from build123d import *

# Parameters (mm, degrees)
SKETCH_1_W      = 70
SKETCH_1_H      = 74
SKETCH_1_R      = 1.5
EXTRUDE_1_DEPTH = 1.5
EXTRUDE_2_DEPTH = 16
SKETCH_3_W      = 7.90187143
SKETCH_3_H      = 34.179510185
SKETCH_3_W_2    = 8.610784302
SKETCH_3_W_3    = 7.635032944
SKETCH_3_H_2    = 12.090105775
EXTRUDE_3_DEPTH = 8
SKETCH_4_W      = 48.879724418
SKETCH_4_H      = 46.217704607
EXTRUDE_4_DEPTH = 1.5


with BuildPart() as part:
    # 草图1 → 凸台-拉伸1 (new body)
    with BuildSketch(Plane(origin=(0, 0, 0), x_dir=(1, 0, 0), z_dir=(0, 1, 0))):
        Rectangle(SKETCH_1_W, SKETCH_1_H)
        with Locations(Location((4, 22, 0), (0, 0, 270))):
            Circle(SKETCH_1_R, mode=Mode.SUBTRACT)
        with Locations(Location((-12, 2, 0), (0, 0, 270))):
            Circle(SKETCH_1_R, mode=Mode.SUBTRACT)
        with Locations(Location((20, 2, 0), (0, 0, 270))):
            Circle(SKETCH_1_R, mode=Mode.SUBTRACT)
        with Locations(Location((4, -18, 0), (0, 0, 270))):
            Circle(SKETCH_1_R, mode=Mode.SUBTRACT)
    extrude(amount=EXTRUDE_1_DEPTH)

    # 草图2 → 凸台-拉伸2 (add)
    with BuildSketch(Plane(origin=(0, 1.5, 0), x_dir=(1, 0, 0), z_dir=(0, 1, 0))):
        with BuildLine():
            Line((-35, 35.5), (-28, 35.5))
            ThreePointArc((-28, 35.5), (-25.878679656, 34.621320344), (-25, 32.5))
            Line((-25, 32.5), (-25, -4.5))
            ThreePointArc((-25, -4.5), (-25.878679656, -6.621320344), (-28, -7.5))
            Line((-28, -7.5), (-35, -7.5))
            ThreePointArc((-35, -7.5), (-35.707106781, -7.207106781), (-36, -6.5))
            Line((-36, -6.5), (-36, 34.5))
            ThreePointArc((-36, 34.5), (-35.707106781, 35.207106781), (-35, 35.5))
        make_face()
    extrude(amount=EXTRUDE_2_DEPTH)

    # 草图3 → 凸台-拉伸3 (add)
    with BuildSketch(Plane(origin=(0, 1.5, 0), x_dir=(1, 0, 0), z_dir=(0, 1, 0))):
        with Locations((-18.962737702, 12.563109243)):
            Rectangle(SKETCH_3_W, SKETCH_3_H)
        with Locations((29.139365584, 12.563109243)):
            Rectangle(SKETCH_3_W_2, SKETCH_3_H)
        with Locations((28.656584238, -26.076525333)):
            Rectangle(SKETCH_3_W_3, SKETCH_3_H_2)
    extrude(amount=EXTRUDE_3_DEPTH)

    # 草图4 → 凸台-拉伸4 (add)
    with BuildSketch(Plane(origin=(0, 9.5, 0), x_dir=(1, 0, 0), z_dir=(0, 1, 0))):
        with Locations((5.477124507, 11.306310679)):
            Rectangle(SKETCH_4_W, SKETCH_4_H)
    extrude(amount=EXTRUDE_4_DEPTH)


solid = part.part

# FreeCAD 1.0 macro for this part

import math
import FreeCAD as App
import Part
import Sketcher

V = App.Vector
Q = App.Units.Quantity


def add_polygon(sketch, points):
    """Adds a closed chain of lines whose ends are joined by coincident constraints."""
    first, n = sketch.GeometryCount, len(points)
    for a, b in zip(points, points[1:] + points[:1]):
        sketch.addGeometry(Part.LineSegment(App.Vector(*a, 0), App.Vector(*b, 0)), False)
    for i in range(n):
        sketch.addConstraint(Sketcher.Constraint("Coincident", first + i, 2, first + (i + 1) % n, 1))

doc = App.newDocument("Part")
body = doc.addObject("PartDesign::Body", "Body")

sketch1 = body.newObject("Sketcher::SketchObject", "Sketch")
sketch1.AttachmentSupport = (doc.getObject("XZ_Plane"), [""])
sketch1.MapMode = "FlatFace"
add_polygon(sketch1, [(-35, -37), (-35, 37), (35, 37), (35, -37)])
sketch1.addGeometry(Part.Circle(V(4, 18, 0), V(0, 0, 1), 1.5), False)
sketch1.addGeometry(Part.Circle(V(-12, -2, 0), V(0, 0, 1), 1.5), False)
sketch1.addGeometry(Part.Circle(V(20, -2, 0), V(0, 0, 1), 1.5), False)
sketch1.addGeometry(Part.Circle(V(4, -22, 0), V(0, 0, 1), 1.5), False)
sketch1.addConstraint(Sketcher.Constraint("Vertical", 0))
sketch1.addConstraint(Sketcher.Constraint("Horizontal", 1))
sketch1.addConstraint(Sketcher.Constraint("Vertical", 2))
sketch1.addConstraint(Sketcher.Constraint("Horizontal", 3))
sketch1.addConstraint(Sketcher.Constraint("Equal", 4, 5))
sketch1.addConstraint(Sketcher.Constraint("Equal", 5, 6))
sketch1.addConstraint(Sketcher.Constraint("Equal", 6, 7))
sketch1.addConstraint(Sketcher.Constraint("Symmetric", 0, 2, 2, 2, -1, 1))
sketch1.addConstraint(Sketcher.Constraint("Horizontal", 5, 3, 6, 3))
sketch1.addConstraint(Sketcher.Constraint("Vertical", 4, 3, 7, 3))
sketch1.addConstraint(Sketcher.Constraint("Diameter", 4, Q("3 mm")))
sketch1.addConstraint(Sketcher.Constraint("DistanceX", 1, 1, 1, 2, Q("70 mm")))
sketch1.addConstraint(Sketcher.Constraint("DistanceY", 0, 1, 0, 2, Q("74 mm")))
sketch1.addConstraint(Sketcher.Constraint("DistanceX", -1, 1, 4, 3, Q("4 mm")))
sketch1.addConstraint(Sketcher.Constraint("DistanceY", -1, 1, 4, 3, Q("18 mm")))
sketch1.addConstraint(Sketcher.Constraint("DistanceX", 5, 3, -1, 1, Q("12 mm")))
sketch1.addConstraint(Sketcher.Constraint("DistanceY", 5, 3, -1, 1, Q("2 mm")))
sketch1.addConstraint(Sketcher.Constraint("DistanceX", -1, 1, 6, 3, Q("20 mm")))
sketch1.addConstraint(Sketcher.Constraint("DistanceY", 7, 3, -1, 1, Q("22 mm")))
pad1 = body.newObject("PartDesign::Pad", "Pad")
pad1.Profile = sketch1
pad1.Length = 1.5
pad1.Reversed = True

sketch2 = body.newObject("Sketcher::SketchObject", "Sketch001")
sketch2.AttachmentSupport = (doc.getObject("XZ_Plane"), [""])
sketch2.MapMode = "FlatFace"
sketch2.AttachmentOffset = App.Placement(V(0, 0, -1.5), App.Rotation())
sketch2.addGeometry(Part.LineSegment(V(-28, -35.5, 0), V(-35, -35.5, 0)), False)
sketch2.addGeometry(Part.ArcOfCircle(Part.Circle(V(-35, -34.5, 0), V(0, 0, 1), 1), math.radians(-180), math.radians(-90)), False)
sketch2.addGeometry(Part.LineSegment(V(-36, -34.5, 0), V(-36, 6.5, 0)), False)
sketch2.addGeometry(Part.ArcOfCircle(Part.Circle(V(-35, 6.5, 0), V(0, 0, 1), 1), math.radians(90), math.radians(180)), False)
sketch2.addGeometry(Part.LineSegment(V(-35, 7.5, 0), V(-28, 7.5, 0)), False)
sketch2.addGeometry(Part.ArcOfCircle(Part.Circle(V(-28, 4.5, 0), V(0, 0, 1), 3), math.radians(0), math.radians(90)), False)
sketch2.addGeometry(Part.LineSegment(V(-25, 4.5, 0), V(-25, -32.5, 0)), False)
sketch2.addGeometry(Part.ArcOfCircle(Part.Circle(V(-28, -32.5, 0), V(0, 0, 1), 3), math.radians(-90), math.radians(0)), False)
sketch2.addConstraint(Sketcher.Constraint("Tangent", 0, 2, 1, 2))
sketch2.addConstraint(Sketcher.Constraint("Tangent", 1, 1, 2, 1))
sketch2.addConstraint(Sketcher.Constraint("Tangent", 2, 2, 3, 2))
sketch2.addConstraint(Sketcher.Constraint("Tangent", 3, 1, 4, 1))
sketch2.addConstraint(Sketcher.Constraint("Tangent", 4, 2, 5, 2))
sketch2.addConstraint(Sketcher.Constraint("Tangent", 5, 1, 6, 1))
sketch2.addConstraint(Sketcher.Constraint("Tangent", 6, 2, 7, 2))
sketch2.addConstraint(Sketcher.Constraint("Tangent", 7, 1, 0, 1))
sketch2.addConstraint(Sketcher.Constraint("Horizontal", 0))
sketch2.addConstraint(Sketcher.Constraint("Vertical", 2))
sketch2.addConstraint(Sketcher.Constraint("Horizontal", 4))
sketch2.addConstraint(Sketcher.Constraint("Vertical", 6))
sketch2.addConstraint(Sketcher.Constraint("Equal", 1, 3))
sketch2.addConstraint(Sketcher.Constraint("Equal", 5, 7))
sketch2.addConstraint(Sketcher.Constraint("Radius", 1, Q("1 mm")))
sketch2.addConstraint(Sketcher.Constraint("Radius", 5, Q("3 mm")))
sketch2.addConstraint(Sketcher.Constraint("DistanceX", 0, 2, 0, 1, Q("7 mm")))
sketch2.addConstraint(Sketcher.Constraint("DistanceY", 2, 1, 2, 2, Q("41 mm")))
sketch2.addConstraint(Sketcher.Constraint("DistanceX", 1, 3, -1, 1, Q("35 mm")))
sketch2.addConstraint(Sketcher.Constraint("DistanceY", 1, 3, -1, 1, Q("34.5 mm")))
pad2 = body.newObject("PartDesign::Pad", "Pad001")
pad2.Profile = sketch2
pad2.Length = 16
pad2.Reversed = True

sketch3 = body.newObject("Sketcher::SketchObject", "Sketch002")
sketch3.AttachmentSupport = (doc.getObject("XZ_Plane"), [""])
sketch3.MapMode = "FlatFace"
sketch3.AttachmentOffset = App.Placement(V(0, 0, -1.5), App.Rotation())
add_polygon(sketch3, [(-23, -30), (-23, 5), (-15, 5), (-15, -30)])
add_polygon(sketch3, [(25, -30), (25, 5), (33, 5), (33, -30)])
add_polygon(sketch3, [(25, 20), (25, 32), (32, 32), (32, 20)])
sketch3.addConstraint(Sketcher.Constraint("Vertical", 0))
sketch3.addConstraint(Sketcher.Constraint("Horizontal", 1))
sketch3.addConstraint(Sketcher.Constraint("Vertical", 2))
sketch3.addConstraint(Sketcher.Constraint("Horizontal", 3))
sketch3.addConstraint(Sketcher.Constraint("Vertical", 4))
sketch3.addConstraint(Sketcher.Constraint("Horizontal", 5))
sketch3.addConstraint(Sketcher.Constraint("Vertical", 6))
sketch3.addConstraint(Sketcher.Constraint("Horizontal", 7))
sketch3.addConstraint(Sketcher.Constraint("Vertical", 8))
sketch3.addConstraint(Sketcher.Constraint("Horizontal", 9))
sketch3.addConstraint(Sketcher.Constraint("Vertical", 10))
sketch3.addConstraint(Sketcher.Constraint("Horizontal", 11))
sketch3.addConstraint(Sketcher.Constraint("Horizontal", 1, 2, 4, 2))
sketch3.addConstraint(Sketcher.Constraint("Horizontal", 3, 2, 6, 2))
sketch3.addConstraint(Sketcher.Constraint("DistanceX", 1, 1, 1, 2, Q("7.901871 mm")))
sketch3.addConstraint(Sketcher.Constraint("DistanceY", 0, 1, 0, 2, Q("34.17951 mm")))
sketch3.addConstraint(Sketcher.Constraint("DistanceX", 1, 2, -1, 1, Q("15.011802 mm")))
sketch3.addConstraint(Sketcher.Constraint("DistanceX", -1, 1, 9, 2, Q("32.474101 mm")))
sketch3.addConstraint(Sketcher.Constraint("DistanceX", 5, 1, 5, 2, Q("8.610784 mm")))
sketch3.addConstraint(Sketcher.Constraint("DistanceX", 9, 1, 9, 2, Q("7.635033 mm")))
sketch3.addConstraint(Sketcher.Constraint("DistanceY", 8, 1, 8, 2, Q("12.090106 mm")))
sketch3.addConstraint(Sketcher.Constraint("DistanceY", -1, 1, 8, 2, Q("32.121578 mm")))
sketch3.addConstraint(Sketcher.Constraint("DistanceX", 1, 2, 5, 2, Q("48.45656 mm")))
sketch3.addConstraint(Sketcher.Constraint("DistanceY", -1, 1, 0, 2, Q("4.526646 mm")))
pad3 = body.newObject("PartDesign::Pad", "Pad002")
pad3.Profile = sketch3
pad3.Length = 8
pad3.Reversed = True

sketch4 = body.newObject("Sketcher::SketchObject", "Sketch003")
sketch4.AttachmentSupport = (doc.getObject("XZ_Plane"), [""])
sketch4.MapMode = "FlatFace"
sketch4.AttachmentOffset = App.Placement(V(0, 0, -9.5), App.Rotation())
add_polygon(sketch4, [(-19, -34), (-19, 12), (30, 12), (30, -34)])
sketch4.addConstraint(Sketcher.Constraint("Vertical", 0))
sketch4.addConstraint(Sketcher.Constraint("Horizontal", 1))
sketch4.addConstraint(Sketcher.Constraint("Vertical", 2))
sketch4.addConstraint(Sketcher.Constraint("Horizontal", 3))
sketch4.addConstraint(Sketcher.Constraint("DistanceX", 1, 1, 1, 2, Q("48.879724 mm")))
sketch4.addConstraint(Sketcher.Constraint("DistanceY", 0, 1, 0, 2, Q("46.217705 mm")))
sketch4.addConstraint(Sketcher.Constraint("DistanceY", -1, 1, 0, 2, Q("11.802542 mm")))
sketch4.addConstraint(Sketcher.Constraint("DistanceX", 0, 2, -1, 1, Q("18.962738 mm")))
pad4 = body.newObject("PartDesign::Pad", "Pad003")
pad4.Profile = sketch4
pad4.Length = 1.5
pad4.Reversed = True

doc.recompute()
